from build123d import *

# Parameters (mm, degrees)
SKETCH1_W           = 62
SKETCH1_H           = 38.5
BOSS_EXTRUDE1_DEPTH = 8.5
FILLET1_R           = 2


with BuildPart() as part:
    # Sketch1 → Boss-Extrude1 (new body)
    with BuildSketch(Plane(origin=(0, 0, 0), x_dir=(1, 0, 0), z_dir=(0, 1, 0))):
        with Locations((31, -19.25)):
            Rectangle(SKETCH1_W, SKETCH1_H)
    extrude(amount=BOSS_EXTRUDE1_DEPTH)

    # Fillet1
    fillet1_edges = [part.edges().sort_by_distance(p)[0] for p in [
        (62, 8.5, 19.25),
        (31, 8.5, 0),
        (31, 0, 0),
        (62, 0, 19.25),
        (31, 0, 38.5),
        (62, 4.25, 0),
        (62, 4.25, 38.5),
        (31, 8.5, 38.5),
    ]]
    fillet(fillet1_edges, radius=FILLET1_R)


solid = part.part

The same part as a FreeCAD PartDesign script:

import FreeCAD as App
import Part
import Sketcher

V = App.Vector
Q = App.Units.Quantity


def edges_at(feature, points):
    """Names of the edges that pass closest to the given points."""
    edges = feature.Shape.Edges
    near = lambda p: min(range(len(edges)), key=lambda i: edges[i].distToShape(Part.Vertex(*p))[0])
    return sorted({f"Edge{near(p) + 1}" for p in points})

doc = App.newDocument("Part")
params = doc.addObject("Spreadsheet::Sheet", "Params")
for row, (alias, value) in enumerate([
    ("sketch1_width", "62 mm"),
    ("sketch1_height", "38.5 mm"),
    ("pad1_length", "8.5 mm"),
    ("fillet_radius", "2 mm"),
], start=1):
    params.set(f"A{row}", alias)
    params.set(f"B{row}", "=" + value)
    params.setAlias(f"B{row}", alias)

body = doc.addObject("PartDesign::Body", "Body")

sketch1 = doc.addObject("Sketcher::SketchObject", "Sketch")
body.addObject(sketch1)
sketch1.AttachmentSupport = (doc.XZ_Plane, [""])
sketch1.MapMode = "FlatFace"
sketch1.addGeometry(Part.LineSegment(V(0, 0, 0), V(0, 38, 0)), False)
sketch1.addGeometry(Part.LineSegment(V(0, 38, 0), V(62, 38, 0)), False)
sketch1.addGeometry(Part.LineSegment(V(62, 38, 0), V(62, 0, 0)), False)
sketch1.addGeometry(Part.LineSegment(V(62, 0, 0), V(0, 0, 0)), False)
sketch1.addConstraint(Sketcher.Constraint("Coincident", 0, 2, 1, 1))
sketch1.addConstraint(Sketcher.Constraint("Coincident", 1, 2, 2, 1))
sketch1.addConstraint(Sketcher.Constraint("Coincident", 2, 2, 3, 1))
sketch1.addConstraint(Sketcher.Constraint("Coincident", 3, 2, 0, 1))
sketch1.addConstraint(Sketcher.Constraint("Vertical", 0))
sketch1.addConstraint(Sketcher.Constraint("Horizontal", 1))
sketch1.addConstraint(Sketcher.Constraint("Vertical", 2))
sketch1.addConstraint(Sketcher.Constraint("Horizontal", 3))
sketch1.addConstraint(Sketcher.Constraint("Coincident", 3, 2, -1, 1))
sketch1.addConstraint(Sketcher.Constraint("DistanceX", 1, 1, 1, 2, Q("62 mm")))
sketch1.addConstraint(Sketcher.Constraint("DistanceY", 0, 1, 0, 2, Q("38.5 mm")))
sketch1.setExpression("Constraints[9]", "Params.sketch1_width")
sketch1.setExpression("Constraints[10]", "Params.sketch1_height")
pad1 = doc.addObject("PartDesign::Pad", "Pad")
body.addObject(pad1)
pad1.Profile = sketch1
pad1.setExpression("Length", "Params.pad1_length")
pad1.Reversed = True
doc.recompute()

fillet = doc.addObject("PartDesign::Fillet", "Fillet")
body.addObject(fillet)
fillet.Base = (pad1, edges_at(pad1, [
    (62, 8.5, 19.25),
    (31, 8.5, 0),
    (31, 0, 0),
    (62, 0, 19.25),
    (31, 0, 38.5),
    (62, 4.25, 0),
    (62, 4.25, 38.5),
    (31, 8.5, 38.5),
]))
fillet.setExpression("Radius", "Params.fillet_radius")

doc.recompute()
